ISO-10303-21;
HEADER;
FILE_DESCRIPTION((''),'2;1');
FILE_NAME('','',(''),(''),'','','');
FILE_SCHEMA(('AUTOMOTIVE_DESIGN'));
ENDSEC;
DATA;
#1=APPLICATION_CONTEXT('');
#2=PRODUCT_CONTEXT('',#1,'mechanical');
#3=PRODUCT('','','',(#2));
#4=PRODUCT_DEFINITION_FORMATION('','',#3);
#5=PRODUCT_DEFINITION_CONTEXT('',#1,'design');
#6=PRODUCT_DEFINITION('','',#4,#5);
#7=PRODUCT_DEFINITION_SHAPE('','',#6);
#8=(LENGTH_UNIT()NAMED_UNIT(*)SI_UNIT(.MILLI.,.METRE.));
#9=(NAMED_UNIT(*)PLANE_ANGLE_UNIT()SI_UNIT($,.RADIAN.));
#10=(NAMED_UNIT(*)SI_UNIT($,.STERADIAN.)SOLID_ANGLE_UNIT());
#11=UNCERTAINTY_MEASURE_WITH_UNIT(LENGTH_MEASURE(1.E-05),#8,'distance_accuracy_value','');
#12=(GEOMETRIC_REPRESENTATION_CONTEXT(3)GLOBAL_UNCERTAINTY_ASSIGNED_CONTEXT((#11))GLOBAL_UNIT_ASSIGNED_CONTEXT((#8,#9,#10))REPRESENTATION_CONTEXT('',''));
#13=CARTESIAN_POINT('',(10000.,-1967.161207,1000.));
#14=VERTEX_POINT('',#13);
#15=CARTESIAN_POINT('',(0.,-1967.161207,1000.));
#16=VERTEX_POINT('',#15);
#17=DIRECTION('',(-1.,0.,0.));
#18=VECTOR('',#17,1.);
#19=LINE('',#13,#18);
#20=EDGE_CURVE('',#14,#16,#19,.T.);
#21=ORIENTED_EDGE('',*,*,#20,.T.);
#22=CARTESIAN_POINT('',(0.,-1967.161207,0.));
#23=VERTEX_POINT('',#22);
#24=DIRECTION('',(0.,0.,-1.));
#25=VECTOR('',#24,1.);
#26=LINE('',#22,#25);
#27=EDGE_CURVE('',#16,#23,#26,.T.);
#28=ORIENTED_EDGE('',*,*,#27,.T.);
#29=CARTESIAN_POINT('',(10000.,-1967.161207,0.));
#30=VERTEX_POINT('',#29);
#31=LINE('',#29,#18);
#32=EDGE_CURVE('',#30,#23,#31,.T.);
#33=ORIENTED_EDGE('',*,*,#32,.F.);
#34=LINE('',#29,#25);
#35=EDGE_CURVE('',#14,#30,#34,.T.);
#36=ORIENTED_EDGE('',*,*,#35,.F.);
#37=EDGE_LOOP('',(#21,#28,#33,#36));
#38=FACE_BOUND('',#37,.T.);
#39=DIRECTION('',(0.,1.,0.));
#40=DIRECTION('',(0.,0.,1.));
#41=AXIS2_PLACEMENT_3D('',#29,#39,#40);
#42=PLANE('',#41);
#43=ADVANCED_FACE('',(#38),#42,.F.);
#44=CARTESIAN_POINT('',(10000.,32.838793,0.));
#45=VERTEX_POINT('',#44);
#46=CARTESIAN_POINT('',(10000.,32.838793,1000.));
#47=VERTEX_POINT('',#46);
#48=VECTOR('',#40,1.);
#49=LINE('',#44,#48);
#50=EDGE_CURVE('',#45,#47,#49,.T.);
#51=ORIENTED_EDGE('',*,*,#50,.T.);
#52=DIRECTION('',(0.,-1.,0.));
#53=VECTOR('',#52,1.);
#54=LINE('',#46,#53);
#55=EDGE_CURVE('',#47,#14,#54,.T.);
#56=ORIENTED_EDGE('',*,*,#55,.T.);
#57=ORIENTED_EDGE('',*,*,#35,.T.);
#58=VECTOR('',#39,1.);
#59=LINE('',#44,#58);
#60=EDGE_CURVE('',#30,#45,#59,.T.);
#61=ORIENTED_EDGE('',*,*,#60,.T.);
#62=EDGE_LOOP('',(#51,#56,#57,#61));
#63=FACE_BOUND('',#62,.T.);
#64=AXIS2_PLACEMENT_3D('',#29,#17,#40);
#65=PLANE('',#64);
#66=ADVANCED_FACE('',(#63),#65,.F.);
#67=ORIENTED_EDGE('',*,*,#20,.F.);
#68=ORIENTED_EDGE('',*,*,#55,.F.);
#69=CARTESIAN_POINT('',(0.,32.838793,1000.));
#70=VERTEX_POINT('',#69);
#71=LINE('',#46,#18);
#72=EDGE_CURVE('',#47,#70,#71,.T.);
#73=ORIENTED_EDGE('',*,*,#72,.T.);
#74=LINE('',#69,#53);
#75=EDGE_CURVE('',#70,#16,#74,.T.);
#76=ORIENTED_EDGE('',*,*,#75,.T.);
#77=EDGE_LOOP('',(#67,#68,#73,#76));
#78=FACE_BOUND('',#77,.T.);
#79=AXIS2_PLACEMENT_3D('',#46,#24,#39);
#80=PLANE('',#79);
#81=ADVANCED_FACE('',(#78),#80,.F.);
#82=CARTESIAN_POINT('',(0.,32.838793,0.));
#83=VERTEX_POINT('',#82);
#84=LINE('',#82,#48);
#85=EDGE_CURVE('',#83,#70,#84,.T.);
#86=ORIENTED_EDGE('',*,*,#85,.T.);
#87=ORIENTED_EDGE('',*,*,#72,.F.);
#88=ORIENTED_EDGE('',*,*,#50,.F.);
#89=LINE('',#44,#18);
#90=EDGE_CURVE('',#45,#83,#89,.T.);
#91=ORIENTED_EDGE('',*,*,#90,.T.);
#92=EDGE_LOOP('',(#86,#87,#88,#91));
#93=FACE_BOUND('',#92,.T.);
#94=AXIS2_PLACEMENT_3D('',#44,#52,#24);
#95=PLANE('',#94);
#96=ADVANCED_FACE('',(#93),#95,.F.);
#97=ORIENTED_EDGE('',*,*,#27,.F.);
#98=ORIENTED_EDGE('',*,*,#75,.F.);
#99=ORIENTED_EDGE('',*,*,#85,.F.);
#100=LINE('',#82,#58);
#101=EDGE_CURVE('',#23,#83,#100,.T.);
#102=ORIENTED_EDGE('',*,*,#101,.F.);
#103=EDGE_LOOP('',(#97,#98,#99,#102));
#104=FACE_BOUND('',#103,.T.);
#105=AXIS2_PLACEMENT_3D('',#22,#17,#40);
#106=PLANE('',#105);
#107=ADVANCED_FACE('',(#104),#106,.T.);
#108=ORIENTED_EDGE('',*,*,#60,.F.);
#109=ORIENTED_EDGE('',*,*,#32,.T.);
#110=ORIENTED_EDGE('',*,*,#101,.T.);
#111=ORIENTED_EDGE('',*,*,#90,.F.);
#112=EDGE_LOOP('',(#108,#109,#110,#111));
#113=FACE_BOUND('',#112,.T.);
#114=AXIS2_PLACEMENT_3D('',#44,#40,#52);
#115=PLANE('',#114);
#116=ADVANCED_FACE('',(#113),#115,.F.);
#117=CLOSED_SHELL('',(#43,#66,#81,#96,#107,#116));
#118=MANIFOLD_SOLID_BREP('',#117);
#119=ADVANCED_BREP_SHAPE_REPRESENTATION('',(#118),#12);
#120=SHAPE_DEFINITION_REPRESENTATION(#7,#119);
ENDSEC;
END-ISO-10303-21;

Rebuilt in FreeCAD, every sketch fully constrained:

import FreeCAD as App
import Part
import Sketcher


def add_polygon(sketch, points):
    """Adds a closed chain of lines whose ends are joined by coincident constraints."""
    first, n = sketch.GeometryCount, len(points)
    for a, b in zip(points, points[1:] + points[:1]):
        sketch.addGeometry(Part.LineSegment(App.Vector(*a, 0), App.Vector(*b, 0)), False)
    for i in range(n):
        sketch.addConstraint(Sketcher.Constraint("Coincident", first + i, 2, first + (i + 1) % n, 1))

doc = App.newDocument("Part")
params = doc.addObject("Spreadsheet::Sheet", "Params")
for row, (alias, value) in enumerate([
    ("sketch1_width", "2000 mm"),
    ("sketch1_height", "1000 mm"),
    ("pad1_length", "10000 mm"),
], start=1):
    params.set(f"A{row}", alias)
    params.set(f"B{row}", "=" + value)
    params.setAlias(f"B{row}", alias)

body = doc.addObject("PartDesign::Body", "Body")

# Sketch on YZ plane
sketch1 = body.newObject("Sketcher::SketchObject", "Sketch")
sketch1.AttachmentSupport = (doc.getObject("YZ_Plane"), [""])
sketch1.MapMode = "FlatFace"
add_polygon(sketch1, [(33, 1000), (-1967, 1000), (-1967, 0), (33, 0)])  # lines 0-3
sketch1.addConstraint(Sketcher.Constraint("Horizontal", 0))
sketch1.addConstraint(Sketcher.Constraint("Vertical", 1))
sketch1.addConstraint(Sketcher.Constraint("Horizontal", 2))
sketch1.addConstraint(Sketcher.Constraint("Vertical", 3))
sketch1.addConstraint(Sketcher.Constraint("PointOnObject", 1, 2, -1))
sketch1.addConstraint(Sketcher.Constraint("DistanceX", 0, 2, 0, 1, 2000.0))
sketch1.addConstraint(Sketcher.Constraint("DistanceY", 1, 2, 1, 1, 1000.0))
sketch1.addConstraint(Sketcher.Constraint("DistanceX", 0, 2, -1, 1, 1967.161207))
sketch1.setExpression("Constraints[9]", "Params.sketch1_width")
sketch1.setExpression("Constraints[10]", "Params.sketch1_height")
pad1 = body.newObject("PartDesign::Pad", "Pad")
pad1.Profile = sketch1
pad1.setExpression("Length", "Params.pad1_length")

doc.recompute()
